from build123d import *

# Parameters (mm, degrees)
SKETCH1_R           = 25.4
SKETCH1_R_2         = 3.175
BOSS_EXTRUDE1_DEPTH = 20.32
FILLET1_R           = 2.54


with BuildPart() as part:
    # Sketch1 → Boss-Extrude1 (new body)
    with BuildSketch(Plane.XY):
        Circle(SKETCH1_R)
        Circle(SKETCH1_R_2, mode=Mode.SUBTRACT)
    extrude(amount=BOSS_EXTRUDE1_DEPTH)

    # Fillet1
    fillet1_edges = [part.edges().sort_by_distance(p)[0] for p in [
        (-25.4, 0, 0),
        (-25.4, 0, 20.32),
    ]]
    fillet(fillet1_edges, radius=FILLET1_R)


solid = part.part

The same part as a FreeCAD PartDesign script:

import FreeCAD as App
import Part
import Sketcher
from FreeCAD import Vector
Q = App.Units.Quantity


def edges_at(feature, points):
    """Names of the edges that pass closest to the given points."""
    edges = feature.Shape.Edges
    near = lambda p: min(range(len(edges)), key=lambda i: edges[i].distToShape(Part.Vertex(*p))[0])
    return sorted({f"Edge{near(p) + 1}" for p in points})

doc = App.newDocument("Part")
params = doc.addObject("Spreadsheet::Sheet", "Params")
for row, (alias, value) in enumerate([
    ("sketch1_diameter", "2 in"),
    ("sketch1_diameter2", "0.25 in"),
    ("pad1_length", "0.8 in"),
    ("fillet_radius", "0.1 in"),
], start=1):
    params.set(f"A{row}", alias)
    params.set(f"B{row}", "=" + value)
    params.setAlias(f"B{row}", alias)

body = doc.addObject("PartDesign::Body", "Body")

sketch1 = body.newObject("Sketcher::SketchObject", "Sketch")
sketch1.AttachmentSupport = (doc.getObject("XY_Plane"), [""])
sketch1.MapMode = "FlatFace"
sketch1.addGeometry(Part.Circle(Vector(0, 0, 0), Vector(0, 0, 1), 25.4), False)
sketch1.addGeometry(Part.Circle(Vector(0, 0, 0), Vector(0, 0, 1), 3.2), False)
sketch1.addConstraint(Sketcher.Constraint("Coincident", 0, 3, -1, 1))
sketch1.addConstraint(Sketcher.Constraint("Coincident", 1, 3, -1, 1))
sketch1.addConstraint(Sketcher.Constraint("Diameter", 0, Q("2 in")))
sketch1.addConstraint(Sketcher.Constraint("Diameter", 1, Q("0.25 in")))
sketch1.setExpression("Constraints[2]", "Params.sketch1_diameter")
sketch1.setExpression("Constraints[3]", "Params.sketch1_diameter2")
pad1 = body.newObject("PartDesign::Pad", "Pad")
pad1.Profile = sketch1
pad1.setExpression("Length", "Params.pad1_length")
doc.recompute()

fillet = body.newObject("PartDesign::Fillet", "Fillet")
fillet.Base = (pad1, edges_at(pad1, [(-25.4, 0, 0), (-25.4, 0, 20.32)]))
fillet.setExpression("Radius", "Params.fillet_radius")

doc.recompute()
